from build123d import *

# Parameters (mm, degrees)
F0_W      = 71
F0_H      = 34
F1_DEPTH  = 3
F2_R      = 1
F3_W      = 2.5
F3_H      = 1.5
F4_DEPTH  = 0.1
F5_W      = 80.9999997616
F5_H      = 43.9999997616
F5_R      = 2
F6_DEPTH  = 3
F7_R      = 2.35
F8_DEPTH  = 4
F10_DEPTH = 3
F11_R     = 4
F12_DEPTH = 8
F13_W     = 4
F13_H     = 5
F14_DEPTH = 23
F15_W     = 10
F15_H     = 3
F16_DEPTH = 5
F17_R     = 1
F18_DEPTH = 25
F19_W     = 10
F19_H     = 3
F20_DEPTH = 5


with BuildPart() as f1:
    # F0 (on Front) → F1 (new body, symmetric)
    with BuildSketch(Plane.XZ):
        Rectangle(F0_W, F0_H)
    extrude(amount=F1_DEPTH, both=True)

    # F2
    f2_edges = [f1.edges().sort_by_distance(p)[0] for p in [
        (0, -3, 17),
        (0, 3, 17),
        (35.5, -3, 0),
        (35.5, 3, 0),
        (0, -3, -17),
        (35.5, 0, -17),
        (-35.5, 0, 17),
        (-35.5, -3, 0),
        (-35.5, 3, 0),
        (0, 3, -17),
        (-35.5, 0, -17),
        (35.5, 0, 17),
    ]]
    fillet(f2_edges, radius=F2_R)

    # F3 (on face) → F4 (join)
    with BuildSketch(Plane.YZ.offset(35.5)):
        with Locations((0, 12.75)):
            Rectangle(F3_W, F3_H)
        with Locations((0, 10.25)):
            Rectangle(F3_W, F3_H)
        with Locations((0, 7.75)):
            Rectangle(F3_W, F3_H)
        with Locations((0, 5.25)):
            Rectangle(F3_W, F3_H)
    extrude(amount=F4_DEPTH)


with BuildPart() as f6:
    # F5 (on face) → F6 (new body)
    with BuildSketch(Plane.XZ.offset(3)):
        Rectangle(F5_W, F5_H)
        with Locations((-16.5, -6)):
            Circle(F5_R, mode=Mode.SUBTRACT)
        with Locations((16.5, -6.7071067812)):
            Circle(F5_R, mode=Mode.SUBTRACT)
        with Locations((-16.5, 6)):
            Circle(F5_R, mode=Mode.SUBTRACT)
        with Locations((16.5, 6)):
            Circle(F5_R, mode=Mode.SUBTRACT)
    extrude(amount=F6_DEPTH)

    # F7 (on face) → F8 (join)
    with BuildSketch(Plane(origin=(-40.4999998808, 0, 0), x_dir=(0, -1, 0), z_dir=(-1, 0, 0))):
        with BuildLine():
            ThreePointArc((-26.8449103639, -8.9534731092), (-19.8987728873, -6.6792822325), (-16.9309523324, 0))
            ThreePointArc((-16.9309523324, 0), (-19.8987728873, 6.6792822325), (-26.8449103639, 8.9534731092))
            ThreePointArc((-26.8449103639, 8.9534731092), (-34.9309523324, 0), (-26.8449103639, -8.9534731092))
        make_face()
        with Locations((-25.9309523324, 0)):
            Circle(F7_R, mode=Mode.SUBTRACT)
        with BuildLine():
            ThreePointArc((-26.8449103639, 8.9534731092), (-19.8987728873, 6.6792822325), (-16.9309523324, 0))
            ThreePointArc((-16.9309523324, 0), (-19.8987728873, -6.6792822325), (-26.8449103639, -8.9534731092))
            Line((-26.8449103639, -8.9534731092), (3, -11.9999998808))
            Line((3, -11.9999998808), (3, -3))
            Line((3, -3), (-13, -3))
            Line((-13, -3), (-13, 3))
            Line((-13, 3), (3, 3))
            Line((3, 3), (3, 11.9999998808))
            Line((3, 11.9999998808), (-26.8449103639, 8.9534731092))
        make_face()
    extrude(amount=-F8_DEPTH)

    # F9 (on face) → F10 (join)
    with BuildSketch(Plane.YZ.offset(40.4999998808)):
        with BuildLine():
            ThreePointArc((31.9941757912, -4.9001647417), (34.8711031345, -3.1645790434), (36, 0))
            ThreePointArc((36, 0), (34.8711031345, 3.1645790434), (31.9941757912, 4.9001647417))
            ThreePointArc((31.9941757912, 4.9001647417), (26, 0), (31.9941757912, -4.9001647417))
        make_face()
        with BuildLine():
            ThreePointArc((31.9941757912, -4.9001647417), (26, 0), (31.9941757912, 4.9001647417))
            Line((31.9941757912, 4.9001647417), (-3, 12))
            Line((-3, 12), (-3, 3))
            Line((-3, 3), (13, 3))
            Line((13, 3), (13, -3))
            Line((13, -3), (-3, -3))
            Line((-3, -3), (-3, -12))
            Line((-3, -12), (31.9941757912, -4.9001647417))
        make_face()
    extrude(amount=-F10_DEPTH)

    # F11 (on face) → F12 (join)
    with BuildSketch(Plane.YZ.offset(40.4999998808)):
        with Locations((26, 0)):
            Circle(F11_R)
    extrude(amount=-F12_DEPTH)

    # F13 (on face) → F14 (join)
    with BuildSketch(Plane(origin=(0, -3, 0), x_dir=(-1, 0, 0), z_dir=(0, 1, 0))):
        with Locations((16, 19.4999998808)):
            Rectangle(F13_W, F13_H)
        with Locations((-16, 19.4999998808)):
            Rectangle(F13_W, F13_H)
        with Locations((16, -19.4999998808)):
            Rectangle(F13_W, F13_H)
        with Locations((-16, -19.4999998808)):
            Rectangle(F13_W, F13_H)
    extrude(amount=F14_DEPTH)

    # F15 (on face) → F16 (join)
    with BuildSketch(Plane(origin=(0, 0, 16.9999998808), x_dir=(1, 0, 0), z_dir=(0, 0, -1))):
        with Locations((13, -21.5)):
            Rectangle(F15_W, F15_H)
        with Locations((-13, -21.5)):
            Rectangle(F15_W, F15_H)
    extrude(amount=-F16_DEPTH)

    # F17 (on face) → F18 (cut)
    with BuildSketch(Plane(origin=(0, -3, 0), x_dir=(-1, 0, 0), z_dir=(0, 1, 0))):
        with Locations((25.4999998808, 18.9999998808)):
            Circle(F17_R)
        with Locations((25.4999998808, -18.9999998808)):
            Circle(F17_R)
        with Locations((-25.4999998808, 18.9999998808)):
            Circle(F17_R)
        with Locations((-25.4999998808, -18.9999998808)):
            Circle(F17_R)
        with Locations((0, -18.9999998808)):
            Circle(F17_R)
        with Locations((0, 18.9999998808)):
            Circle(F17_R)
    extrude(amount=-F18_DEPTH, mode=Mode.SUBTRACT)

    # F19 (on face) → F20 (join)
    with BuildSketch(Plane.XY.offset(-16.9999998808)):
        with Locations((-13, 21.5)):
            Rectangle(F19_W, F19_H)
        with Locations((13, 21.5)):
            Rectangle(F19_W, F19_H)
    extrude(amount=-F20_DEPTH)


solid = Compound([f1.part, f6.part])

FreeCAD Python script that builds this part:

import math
import FreeCAD as App
import Part
import Sketcher

V = App.Vector
Q = App.Units.Quantity


def add_polygon(sketch, points):
    """Adds a closed chain of lines whose ends are joined by coincident constraints."""
    first, n = sketch.GeometryCount, len(points)
    for a, b in zip(points, points[1:] + points[:1]):
        sketch.addGeometry(Part.LineSegment(App.Vector(*a, 0), App.Vector(*b, 0)), False)
    for i in range(n):
        sketch.addConstraint(Sketcher.Constraint("Coincident", first + i, 2, first + (i + 1) % n, 1))

doc = App.newDocument("Part")
body = doc.addObject("PartDesign::Body", "Body")

# Sketch on XZ plane
sketch1 = body.newObject("Sketcher::SketchObject", "Sketch")
sketch1.AttachmentSupport = (doc.getObject("XZ_Plane"), [""])
sketch1.MapMode = "FlatFace"
add_polygon(sketch1, [(-36, 17), (-36, -17), (36, -17), (36, 17)])  # lines 0-3
sketch1.addConstraint([
    Sketcher.Constraint("Vertical", 0),
    Sketcher.Constraint("Horizontal", 1),
    Sketcher.Constraint("Vertical", 2),
    Sketcher.Constraint("Horizontal", 3),
    Sketcher.Constraint("Symmetric", 0, 2, 2, 2, -1, 1),
    Sketcher.Constraint("DistanceX", 1, 1, 1, 2, Q("71 mm")),
    Sketcher.Constraint("DistanceY", 0, 2, 0, 1, Q("34 mm")),
])
pad1 = body.newObject("PartDesign::Pad", "Pad")
pad1.Profile = sketch1
pad1.Length = 6
pad1.Midplane = True
doc.recompute()

fillet = body.newObject("PartDesign::Fillet", "Fillet")
fillet.Base = (pad1, ["Edge1"])
fillet.UseAllEdges = True
fillet.Radius = 1

# Sketch on YZ plane
sketch2 = body.newObject("Sketcher::SketchObject", "Sketch001")
sketch2.AttachmentSupport = (doc.getObject("YZ_Plane"), [""])
sketch2.MapMode = "FlatFace"
sketch2.AttachmentOffset = App.Placement(V(0, 0, 35.5), App.Rotation())
add_polygon(sketch2, [(-1.2, 13.5), (-1.2, 12), (1.2, 12), (1.2, 13.5)])  # lines 0-3
add_polygon(sketch2, [(-1.2, 11), (-1.2, 9.5), (1.2, 9.5), (1.2, 11)])  # lines 4-7
add_polygon(sketch2, [(-1.2, 8.5), (-1.2, 7), (1.2, 7), (1.2, 8.5)])  # lines 8-11
add_polygon(sketch2, [(-1.2, 6), (-1.2, 4.5), (1.2, 4.5), (1.2, 6)])  # lines 12-15
sketch2.addConstraint([
    Sketcher.Constraint("Vertical", 0),
    Sketcher.Constraint("Horizontal", 1),
    Sketcher.Constraint("Vertical", 2),
    Sketcher.Constraint("Horizontal", 3),
    Sketcher.Constraint("Vertical", 4),
    Sketcher.Constraint("Horizontal", 5),
    Sketcher.Constraint("Vertical", 6),
    Sketcher.Constraint("Horizontal", 7),
    Sketcher.Constraint("Vertical", 8),
    Sketcher.Constraint("Horizontal", 9),
    Sketcher.Constraint("Vertical", 10),
    Sketcher.Constraint("Horizontal", 11),
    Sketcher.Constraint("Vertical", 12),
    Sketcher.Constraint("Horizontal", 13),
    Sketcher.Constraint("Vertical", 14),
    Sketcher.Constraint("Horizontal", 15),
    Sketcher.Constraint("Vertical", 3, 2, 4, 2),
    Sketcher.Constraint("Vertical", 2, 2, 5, 2),
    Sketcher.Constraint("Vertical", 7, 2, 8, 2),
    Sketcher.Constraint("Vertical", 6, 2, 9, 2),
    Sketcher.Constraint("Vertical", 11, 2, 12, 2),
    Sketcher.Constraint("Vertical", 10, 2, 13, 2),
    Sketcher.Constraint("Equal", 2, 4),
    Sketcher.Constraint("Equal", 6, 8),
    Sketcher.Constraint("Equal", 10, 12),
    Sketcher.Constraint("DistanceX", 1, 1, 1, 2, Q("2.5 mm")),
    Sketcher.Constraint("DistanceY", 0, 2, 0, 1, Q("1.5 mm")),
    Sketcher.Constraint("DistanceY", -1, 1, 0, 2, Q("12 mm")),
    Sketcher.Constraint("DistanceY", -1, 1, 6, 2, Q("11 mm")),
    Sketcher.Constraint("DistanceY", -1, 1, 8, 2, Q("7 mm")),
    Sketcher.Constraint("DistanceY", -1, 1, 14, 2, Q("6 mm")),
    Sketcher.Constraint("DistanceX", 0, 2, -1, 1, Q("1.25 mm")),
])
pad2 = body.newObject("PartDesign::Pad", "Pad001")
pad2.Profile = sketch2
pad2.Length = 0.1
body2 = doc.addObject("PartDesign::Body", "Body001")

# Sketch on XZ plane
sketch3 = body2.newObject("Sketcher::SketchObject", "Sketch002")
sketch3.AttachmentSupport = (doc.getObject("XZ_Plane001"), [""])
sketch3.MapMode = "FlatFace"
sketch3.AttachmentOffset = App.Placement(V(0, 0, 3), App.Rotation())
add_polygon(sketch3, [(-40.5, 22), (-40.5, -22), (40.5, -22), (40.5, 22)])  # lines 0-3
sketch3.addGeometry(Part.Circle(V(-16.5, -6, 0), V(0, 0, 1), 2), False)  # 4
sketch3.addGeometry(Part.Circle(V(16.5, -6.7, 0), V(0, 0, 1), 2), False)  # 5
sketch3.addGeometry(Part.Circle(V(-16.5, 6, 0), V(0, 0, 1), 2), False)  # 6
sketch3.addGeometry(Part.Circle(V(16.5, 6, 0), V(0, 0, 1), 2), False)  # 7
sketch3.addConstraint([
    Sketcher.Constraint("Vertical", 0),
    Sketcher.Constraint("Horizontal", 1),
    Sketcher.Constraint("Vertical", 2),
    Sketcher.Constraint("Horizontal", 3),
    Sketcher.Constraint("Equal", 4, 5),
    Sketcher.Constraint("Equal", 5, 6),
    Sketcher.Constraint("Equal", 6, 7),
    Sketcher.Constraint("Symmetric", 4, 3, 7, 3, -1, 1),
    Sketcher.Constraint("Symmetric", 0, 2, 2, 2, -1, 1),
    Sketcher.Constraint("Symmetric", 6, 3, 7, 3, -2),
    Sketcher.Constraint("Vertical", 5, 3, 7, 3),
    Sketcher.Constraint("Diameter", 4, Q("4 mm")),
    Sketcher.Constraint("DistanceX", 1, 1, 1, 2, Q("81 mm")),
    Sketcher.Constraint("DistanceY", 0, 2, 0, 1, Q("44 mm")),
    Sketcher.Constraint("DistanceY", 4, 3, -1, 1, Q("6 mm")),
    Sketcher.Constraint("DistanceX", 4, 3, 5, 3, Q("33 mm")),
    Sketcher.Constraint("DistanceY", 5, 3, -1, 1, Q("6.707107 mm")),
])
pad3 = body2.newObject("PartDesign::Pad", "Pad002")
pad3.Profile = sketch3
pad3.Length = 3

# Sketch on YZ plane
sketch4 = body2.newObject("Sketcher::SketchObject", "Sketch003")
sketch4.AttachmentSupport = (doc.getObject("YZ_Plane001"), [""])
sketch4.MapMode = "FlatFace"
sketch4.AttachmentOffset = App.Placement(V(0, 0, -40.5), App.Rotation())
sketch4.addGeometry([
    Part.ArcOfCircle(Part.Circle(V(25.9, 0, 0), V(0, 0, 1), 9), math.radians(-84), math.radians(84)),  # 0
    Part.LineSegment(V(26.8, -9, 0), V(-3, -12, 0)),  # 1
    Part.LineSegment(V(-3, -12, 0), V(-3, -3, 0)),  # 2
    Part.LineSegment(V(-3, -3, 0), V(13, -3, 0)),  # 3
    Part.LineSegment(V(13, -3, 0), V(13, 3, 0)),  # 4
    Part.LineSegment(V(13, 3, 0), V(-3, 3, 0)),  # 5
    Part.LineSegment(V(-3, 3, 0), V(-3, 12, 0)),  # 6
    Part.LineSegment(V(-3, 12, 0), V(26.8, 9, 0)),  # 7
    Part.Circle(V(25.9, 0, 0), V(0, 0, 1), 2.4),  # 8
], False)
sketch4.addConstraint([
    Sketcher.Constraint("Tangent", 0, 1, 1, 1),
    Sketcher.Constraint("Coincident", 1, 2, 2, 1),
    Sketcher.Constraint("Coincident", 2, 2, 3, 1),
    Sketcher.Constraint("Coincident", 3, 2, 4, 1),
    Sketcher.Constraint("Coincident", 4, 2, 5, 1),
    Sketcher.Constraint("Coincident", 5, 2, 6, 1),
    Sketcher.Constraint("Coincident", 6, 2, 7, 1),
    Sketcher.Constraint("Tangent", 7, 2, 0, 2),
    Sketcher.Constraint("Vertical", 2),
    Sketcher.Constraint("Horizontal", 3),
    Sketcher.Constraint("Vertical", 4),
    Sketcher.Constraint("Horizontal", 5),
    Sketcher.Constraint("Vertical", 6),
    Sketcher.Constraint("Coincident", 8, 3, 0, 3),
    Sketcher.Constraint("Symmetric", 2, 2, 5, 2, -1),
    Sketcher.Constraint("Symmetric", 0, 1, 7, 2, -1),
    Sketcher.Constraint("Radius", 0, Q("9 mm")),
    Sketcher.Constraint("Diameter", 8, Q("4.7 mm")),
    Sketcher.Constraint("DistanceX", 3, 1, 3, 2, Q("16 mm")),
    Sketcher.Constraint("DistanceY", 2, 1, 2, 2, Q("9 mm")),
    Sketcher.Constraint("DistanceY", 4, 1, 4, 2, Q("6 mm")),
    Sketcher.Constraint("Distance", 1, Q("30 mm")),
    Sketcher.Constraint("DistanceX", 1, 2, -1, 1, Q("3 mm")),
])
pad4 = body2.newObject("PartDesign::Pad", "Pad003")
pad4.Profile = sketch4
pad4.Length = 4

# Sketch on YZ plane
sketch5 = body2.newObject("Sketcher::SketchObject", "Sketch004")
sketch5.AttachmentSupport = (doc.getObject("YZ_Plane001"), [""])
sketch5.MapMode = "FlatFace"
sketch5.AttachmentOffset = App.Placement(V(0, 0, 40.5), App.Rotation())
sketch5.addGeometry([
    Part.ArcOfCircle(Part.Circle(V(31, 0, 0), V(0, 0, 1), 5), math.radians(-79), math.radians(0)),  # 0
    Part.ArcOfCircle(Part.Circle(V(31, 0, 0), V(0, 0, 1), 5), math.radians(0), math.radians(79)),  # 1
    Part.LineSegment(V(32, 5, 0), V(-3, 12, 0)),  # 2
    Part.LineSegment(V(-3, 12, 0), V(-3, 3, 0)),  # 3
    Part.LineSegment(V(-3, 3, 0), V(13, 3, 0)),  # 4
    Part.LineSegment(V(13, 3, 0), V(13, -3, 0)),  # 5
    Part.LineSegment(V(13, -3, 0), V(-3, -3, 0)),  # 6
    Part.LineSegment(V(-3, -3, 0), V(-3, -12, 0)),  # 7
    Part.LineSegment(V(-3, -12, 0), V(32, -5, 0)),  # 8
], False)
sketch5.addConstraint([
    Sketcher.Constraint("Tangent", 0, 2, 1, 1),
    Sketcher.Constraint("Tangent", 1, 2, 2, 1),
    Sketcher.Constraint("Coincident", 2, 2, 3, 1),
    Sketcher.Constraint("Coincident", 3, 2, 4, 1),
    Sketcher.Constraint("Coincident", 4, 2, 5, 1),
    Sketcher.Constraint("Coincident", 5, 2, 6, 1),
    Sketcher.Constraint("Coincident", 6, 2, 7, 1),
    Sketcher.Constraint("Coincident", 7, 2, 8, 1),
    Sketcher.Constraint("Tangent", 8, 2, 0, 1),
    Sketcher.Constraint("Vertical", 3),
    Sketcher.Constraint("Horizontal", 4),
    Sketcher.Constraint("Vertical", 5),
    Sketcher.Constraint("Horizontal", 6),
    Sketcher.Constraint("Vertical", 7),
    Sketcher.Constraint("Equal", 0, 1),
    Sketcher.Constraint("Symmetric", 3, 2, 6, 2, -1),
    Sketcher.Constraint("Symmetric", 1, 2, 8, 2, -1),
    Sketcher.Constraint("PointOnObject", 0, 2, -1),
    Sketcher.Constraint("Radius", 0, Q("5 mm")),
    Sketcher.Constraint("DistanceX", 4, 1, 4, 2, Q("16 mm")),
    Sketcher.Constraint("DistanceY", 3, 2, 3, 1, Q("9 mm")),
    Sketcher.Constraint("DistanceY", 5, 2, 5, 1, Q("6 mm")),
    Sketcher.Constraint("DistanceX", -1, 1, 0, 3, Q("31 mm")),
    Sketcher.Constraint("DistanceX", 2, 2, -1, 1, Q("3 mm")),
])
pad5 = body2.newObject("PartDesign::Pad", "Pad004")
pad5.Profile = sketch5
pad5.Length = 3
pad5.Reversed = True

# Sketch on YZ plane
sketch6 = body2.newObject("Sketcher::SketchObject", "Sketch005")
sketch6.AttachmentSupport = (doc.getObject("YZ_Plane001"), [""])
sketch6.MapMode = "FlatFace"
sketch6.AttachmentOffset = App.Placement(V(0, 0, 40.5), App.Rotation())
sketch6.addGeometry(Part.Circle(V(26, 0, 0), V(0, 0, 1), 4), False)
sketch6.addConstraint([
    Sketcher.Constraint("PointOnObject", 0, 3, -1),
    Sketcher.Constraint("Diameter", 0, Q("8 mm")),
    Sketcher.Constraint("DistanceX", -1, 1, 0, 3, Q("26 mm")),
])
pad6 = body2.newObject("PartDesign::Pad", "Pad005")
pad6.Profile = sketch6
pad6.Length = 8
pad6.Reversed = True

# Sketch on XZ plane
sketch7 = body2.newObject("Sketcher::SketchObject", "Sketch006")
sketch7.AttachmentSupport = (doc.getObject("XZ_Plane001"), [""])
sketch7.MapMode = "FlatFace"
sketch7.AttachmentOffset = App.Placement(V(0, 0, 3), App.Rotation())
add_polygon(sketch7, [(-14, 22), (-14, 17), (-18, 17), (-18, 22)])  # lines 0-3
add_polygon(sketch7, [(18, 22), (18, 17), (14, 17), (14, 22)])  # lines 4-7
add_polygon(sketch7, [(-14, -17), (-14, -22), (-18, -22), (-18, -17)])  # lines 8-11
add_polygon(sketch7, [(18, -17), (18, -22), (14, -22), (14, -17)])  # lines 12-15
sketch7.addConstraint([
    Sketcher.Constraint("Vertical", 0),
    Sketcher.Constraint("Horizontal", 1),
    Sketcher.Constraint("Vertical", 2),
    Sketcher.Constraint("Horizontal", 3),
    Sketcher.Constraint("Vertical", 4),
    Sketcher.Constraint("Horizontal", 5),
    Sketcher.Constraint("Vertical", 6),
    Sketcher.Constraint("Horizontal", 7),
    Sketcher.Constraint("Vertical", 8),
    Sketcher.Constraint("Horizontal", 9),
    Sketcher.Constraint("Vertical", 10),
    Sketcher.Constraint("Horizontal", 11),
    Sketcher.Constraint("Vertical", 12),
    Sketcher.Constraint("Horizontal", 13),
    Sketcher.Constraint("Vertical", 14),
    Sketcher.Constraint("Horizontal", 15),
    Sketcher.Constraint("Symmetric", 6, 2, 8, 2, -1, 1),
    Sketcher.Constraint("Symmetric", 4, 2, 10, 2, -1, 1),
    Sketcher.Constraint("Symmetric", 2, 2, 12, 2, -1, 1),
    Sketcher.Constraint("Symmetric", 0, 2, 14, 2, -1, 1),
    Sketcher.Constraint("Symmetric", 1, 2, 4, 2, -2),
    Sketcher.Constraint("Symmetric", 3, 2, 6, 2, -2),
    Sketcher.Constraint("DistanceX", 1, 2, 1, 1, Q("4 mm")),
    Sketcher.Constraint("DistanceY", 0, 2, 0, 1, Q("5 mm")),
    Sketcher.Constraint("DistanceX", 0, 2, -1, 1, Q("14 mm")),
    Sketcher.Constraint("DistanceY", -1, 1, 0, 2, Q("17 mm")),
])
pad7 = body2.newObject("PartDesign::Pad", "Pad006")
pad7.Profile = sketch7
pad7.Length = 23
pad7.Reversed = True

# Sketch on XY plane
sketch8 = body2.newObject("Sketcher::SketchObject", "Sketch007")
sketch8.AttachmentSupport = (doc.getObject("XY_Plane001"), [""])
sketch8.MapMode = "FlatFace"
sketch8.AttachmentOffset = App.Placement(V(0, 0, 17), App.Rotation())
add_polygon(sketch8, [(8, 20), (8, 23), (18, 23), (18, 20)])  # lines 0-3
add_polygon(sketch8, [(-18, 20), (-18, 23), (-8, 23), (-8, 20)])  # lines 4-7
sketch8.addConstraint([
    Sketcher.Constraint("Vertical", 0),
    Sketcher.Constraint("Horizontal", 1),
    Sketcher.Constraint("Vertical", 2),
    Sketcher.Constraint("Horizontal", 3),
    Sketcher.Constraint("Vertical", 4),
    Sketcher.Constraint("Horizontal", 5),
    Sketcher.Constraint("Vertical", 6),
    Sketcher.Constraint("Horizontal", 7),
    Sketcher.Constraint("Symmetric", 1, 2, 4, 2, -2),
    Sketcher.Constraint("Symmetric", 3, 2, 6, 2, -2),
    Sketcher.Constraint("DistanceX", 1, 1, 1, 2, Q("10 mm")),
    Sketcher.Constraint("DistanceY", 0, 1, 0, 2, Q("3 mm")),
    Sketcher.Constraint("DistanceX", -1, 1, 0, 2, Q("8 mm")),
    Sketcher.Constraint("DistanceY", -1, 1, 0, 2, Q("23 mm")),
])
pad8 = body2.newObject("PartDesign::Pad", "Pad007")
pad8.Profile = sketch8
pad8.Length = 5

# Sketch on XZ plane
sketch9 = body2.newObject("Sketcher::SketchObject", "Sketch008")
sketch9.AttachmentSupport = (doc.getObject("XZ_Plane001"), [""])
sketch9.MapMode = "FlatFace"
sketch9.AttachmentOffset = App.Placement(V(0, 0, 3), App.Rotation())
sketch9.addGeometry([
    Part.Circle(V(-25.5, 19, 0), V(0, 0, 1), 1),  # 0
    Part.Circle(V(-25.5, -19, 0), V(0, 0, 1), 1),  # 1
    Part.Circle(V(25.5, 19, 0), V(0, 0, 1), 1),  # 2
    Part.Circle(V(25.5, -19, 0), V(0, 0, 1), 1),  # 3
    Part.Circle(V(0, -19, 0), V(0, 0, 1), 1),  # 4
    Part.Circle(V(0, 19, 0), V(0, 0, 1), 1),  # 5
], False)
sketch9.addConstraint([
    Sketcher.Constraint("Equal", 0, 1),
    Sketcher.Constraint("Equal", 1, 2),
    Sketcher.Constraint("Equal", 2, 3),
    Sketcher.Constraint("Equal", 3, 4),
    Sketcher.Constraint("Equal", 4, 5),
    Sketcher.Constraint("Symmetric", 1, 3, 2, 3, -1, 1),
    Sketcher.Constraint("Symmetric", 0, 3, 3, 3, -1, 1),
    Sketcher.Constraint("Symmetric", 4, 3, 5, 3, -1, 1),
    Sketcher.Constraint("Symmetric", 0, 3, 2, 3, -2),
    Sketcher.Constraint("PointOnObject", 4, 3, -2),
    Sketcher.Constraint("Horizontal", 3, 3, 4, 3),
    Sketcher.Constraint("Diameter", 0, Q("2 mm")),
    Sketcher.Constraint("DistanceY", -1, 1, 0, 3, Q("19 mm")),
    Sketcher.Constraint("DistanceX", 0, 3, 2, 3, Q("51 mm")),
])
pocket1 = body2.newObject("PartDesign::Pocket", "Pocket")
pocket1.Profile = sketch9
pocket1.Length = 25
pocket1.Reversed = True

# Sketch on XY plane
sketch10 = body2.newObject("Sketcher::SketchObject", "Sketch009")
sketch10.AttachmentSupport = (doc.getObject("XY_Plane001"), [""])
sketch10.MapMode = "FlatFace"
sketch10.AttachmentOffset = App.Placement(V(0, 0, -17), App.Rotation())
add_polygon(sketch10, [(-18, 23), (-18, 20), (-8, 20), (-8, 23)])  # lines 0-3
add_polygon(sketch10, [(8, 23), (8, 20), (18, 20), (18, 23)])  # lines 4-7
sketch10.addConstraint([
    Sketcher.Constraint("Vertical", 0),
    Sketcher.Constraint("Horizontal", 1),
    Sketcher.Constraint("Vertical", 2),
    Sketcher.Constraint("Horizontal", 3),
    Sketcher.Constraint("Vertical", 4),
    Sketcher.Constraint("Horizontal", 5),
    Sketcher.Constraint("Vertical", 6),
    Sketcher.Constraint("Horizontal", 7),
    Sketcher.Constraint("Symmetric", 1, 2, 4, 2, -2),
    Sketcher.Constraint("Symmetric", 3, 2, 6, 2, -2),
    Sketcher.Constraint("DistanceX", 1, 1, 1, 2, Q("10 mm")),
    Sketcher.Constraint("DistanceY", 0, 2, 0, 1, Q("3 mm")),
    Sketcher.Constraint("DistanceX", 0, 2, -1, 1, Q("18 mm")),
    Sketcher.Constraint("DistanceY", -1, 1, 0, 2, Q("20 mm")),
])
pad9 = body2.newObject("PartDesign::Pad", "Pad008")
pad9.Profile = sketch10
pad9.Length = 5
pad9.Reversed = True

doc.recompute()
